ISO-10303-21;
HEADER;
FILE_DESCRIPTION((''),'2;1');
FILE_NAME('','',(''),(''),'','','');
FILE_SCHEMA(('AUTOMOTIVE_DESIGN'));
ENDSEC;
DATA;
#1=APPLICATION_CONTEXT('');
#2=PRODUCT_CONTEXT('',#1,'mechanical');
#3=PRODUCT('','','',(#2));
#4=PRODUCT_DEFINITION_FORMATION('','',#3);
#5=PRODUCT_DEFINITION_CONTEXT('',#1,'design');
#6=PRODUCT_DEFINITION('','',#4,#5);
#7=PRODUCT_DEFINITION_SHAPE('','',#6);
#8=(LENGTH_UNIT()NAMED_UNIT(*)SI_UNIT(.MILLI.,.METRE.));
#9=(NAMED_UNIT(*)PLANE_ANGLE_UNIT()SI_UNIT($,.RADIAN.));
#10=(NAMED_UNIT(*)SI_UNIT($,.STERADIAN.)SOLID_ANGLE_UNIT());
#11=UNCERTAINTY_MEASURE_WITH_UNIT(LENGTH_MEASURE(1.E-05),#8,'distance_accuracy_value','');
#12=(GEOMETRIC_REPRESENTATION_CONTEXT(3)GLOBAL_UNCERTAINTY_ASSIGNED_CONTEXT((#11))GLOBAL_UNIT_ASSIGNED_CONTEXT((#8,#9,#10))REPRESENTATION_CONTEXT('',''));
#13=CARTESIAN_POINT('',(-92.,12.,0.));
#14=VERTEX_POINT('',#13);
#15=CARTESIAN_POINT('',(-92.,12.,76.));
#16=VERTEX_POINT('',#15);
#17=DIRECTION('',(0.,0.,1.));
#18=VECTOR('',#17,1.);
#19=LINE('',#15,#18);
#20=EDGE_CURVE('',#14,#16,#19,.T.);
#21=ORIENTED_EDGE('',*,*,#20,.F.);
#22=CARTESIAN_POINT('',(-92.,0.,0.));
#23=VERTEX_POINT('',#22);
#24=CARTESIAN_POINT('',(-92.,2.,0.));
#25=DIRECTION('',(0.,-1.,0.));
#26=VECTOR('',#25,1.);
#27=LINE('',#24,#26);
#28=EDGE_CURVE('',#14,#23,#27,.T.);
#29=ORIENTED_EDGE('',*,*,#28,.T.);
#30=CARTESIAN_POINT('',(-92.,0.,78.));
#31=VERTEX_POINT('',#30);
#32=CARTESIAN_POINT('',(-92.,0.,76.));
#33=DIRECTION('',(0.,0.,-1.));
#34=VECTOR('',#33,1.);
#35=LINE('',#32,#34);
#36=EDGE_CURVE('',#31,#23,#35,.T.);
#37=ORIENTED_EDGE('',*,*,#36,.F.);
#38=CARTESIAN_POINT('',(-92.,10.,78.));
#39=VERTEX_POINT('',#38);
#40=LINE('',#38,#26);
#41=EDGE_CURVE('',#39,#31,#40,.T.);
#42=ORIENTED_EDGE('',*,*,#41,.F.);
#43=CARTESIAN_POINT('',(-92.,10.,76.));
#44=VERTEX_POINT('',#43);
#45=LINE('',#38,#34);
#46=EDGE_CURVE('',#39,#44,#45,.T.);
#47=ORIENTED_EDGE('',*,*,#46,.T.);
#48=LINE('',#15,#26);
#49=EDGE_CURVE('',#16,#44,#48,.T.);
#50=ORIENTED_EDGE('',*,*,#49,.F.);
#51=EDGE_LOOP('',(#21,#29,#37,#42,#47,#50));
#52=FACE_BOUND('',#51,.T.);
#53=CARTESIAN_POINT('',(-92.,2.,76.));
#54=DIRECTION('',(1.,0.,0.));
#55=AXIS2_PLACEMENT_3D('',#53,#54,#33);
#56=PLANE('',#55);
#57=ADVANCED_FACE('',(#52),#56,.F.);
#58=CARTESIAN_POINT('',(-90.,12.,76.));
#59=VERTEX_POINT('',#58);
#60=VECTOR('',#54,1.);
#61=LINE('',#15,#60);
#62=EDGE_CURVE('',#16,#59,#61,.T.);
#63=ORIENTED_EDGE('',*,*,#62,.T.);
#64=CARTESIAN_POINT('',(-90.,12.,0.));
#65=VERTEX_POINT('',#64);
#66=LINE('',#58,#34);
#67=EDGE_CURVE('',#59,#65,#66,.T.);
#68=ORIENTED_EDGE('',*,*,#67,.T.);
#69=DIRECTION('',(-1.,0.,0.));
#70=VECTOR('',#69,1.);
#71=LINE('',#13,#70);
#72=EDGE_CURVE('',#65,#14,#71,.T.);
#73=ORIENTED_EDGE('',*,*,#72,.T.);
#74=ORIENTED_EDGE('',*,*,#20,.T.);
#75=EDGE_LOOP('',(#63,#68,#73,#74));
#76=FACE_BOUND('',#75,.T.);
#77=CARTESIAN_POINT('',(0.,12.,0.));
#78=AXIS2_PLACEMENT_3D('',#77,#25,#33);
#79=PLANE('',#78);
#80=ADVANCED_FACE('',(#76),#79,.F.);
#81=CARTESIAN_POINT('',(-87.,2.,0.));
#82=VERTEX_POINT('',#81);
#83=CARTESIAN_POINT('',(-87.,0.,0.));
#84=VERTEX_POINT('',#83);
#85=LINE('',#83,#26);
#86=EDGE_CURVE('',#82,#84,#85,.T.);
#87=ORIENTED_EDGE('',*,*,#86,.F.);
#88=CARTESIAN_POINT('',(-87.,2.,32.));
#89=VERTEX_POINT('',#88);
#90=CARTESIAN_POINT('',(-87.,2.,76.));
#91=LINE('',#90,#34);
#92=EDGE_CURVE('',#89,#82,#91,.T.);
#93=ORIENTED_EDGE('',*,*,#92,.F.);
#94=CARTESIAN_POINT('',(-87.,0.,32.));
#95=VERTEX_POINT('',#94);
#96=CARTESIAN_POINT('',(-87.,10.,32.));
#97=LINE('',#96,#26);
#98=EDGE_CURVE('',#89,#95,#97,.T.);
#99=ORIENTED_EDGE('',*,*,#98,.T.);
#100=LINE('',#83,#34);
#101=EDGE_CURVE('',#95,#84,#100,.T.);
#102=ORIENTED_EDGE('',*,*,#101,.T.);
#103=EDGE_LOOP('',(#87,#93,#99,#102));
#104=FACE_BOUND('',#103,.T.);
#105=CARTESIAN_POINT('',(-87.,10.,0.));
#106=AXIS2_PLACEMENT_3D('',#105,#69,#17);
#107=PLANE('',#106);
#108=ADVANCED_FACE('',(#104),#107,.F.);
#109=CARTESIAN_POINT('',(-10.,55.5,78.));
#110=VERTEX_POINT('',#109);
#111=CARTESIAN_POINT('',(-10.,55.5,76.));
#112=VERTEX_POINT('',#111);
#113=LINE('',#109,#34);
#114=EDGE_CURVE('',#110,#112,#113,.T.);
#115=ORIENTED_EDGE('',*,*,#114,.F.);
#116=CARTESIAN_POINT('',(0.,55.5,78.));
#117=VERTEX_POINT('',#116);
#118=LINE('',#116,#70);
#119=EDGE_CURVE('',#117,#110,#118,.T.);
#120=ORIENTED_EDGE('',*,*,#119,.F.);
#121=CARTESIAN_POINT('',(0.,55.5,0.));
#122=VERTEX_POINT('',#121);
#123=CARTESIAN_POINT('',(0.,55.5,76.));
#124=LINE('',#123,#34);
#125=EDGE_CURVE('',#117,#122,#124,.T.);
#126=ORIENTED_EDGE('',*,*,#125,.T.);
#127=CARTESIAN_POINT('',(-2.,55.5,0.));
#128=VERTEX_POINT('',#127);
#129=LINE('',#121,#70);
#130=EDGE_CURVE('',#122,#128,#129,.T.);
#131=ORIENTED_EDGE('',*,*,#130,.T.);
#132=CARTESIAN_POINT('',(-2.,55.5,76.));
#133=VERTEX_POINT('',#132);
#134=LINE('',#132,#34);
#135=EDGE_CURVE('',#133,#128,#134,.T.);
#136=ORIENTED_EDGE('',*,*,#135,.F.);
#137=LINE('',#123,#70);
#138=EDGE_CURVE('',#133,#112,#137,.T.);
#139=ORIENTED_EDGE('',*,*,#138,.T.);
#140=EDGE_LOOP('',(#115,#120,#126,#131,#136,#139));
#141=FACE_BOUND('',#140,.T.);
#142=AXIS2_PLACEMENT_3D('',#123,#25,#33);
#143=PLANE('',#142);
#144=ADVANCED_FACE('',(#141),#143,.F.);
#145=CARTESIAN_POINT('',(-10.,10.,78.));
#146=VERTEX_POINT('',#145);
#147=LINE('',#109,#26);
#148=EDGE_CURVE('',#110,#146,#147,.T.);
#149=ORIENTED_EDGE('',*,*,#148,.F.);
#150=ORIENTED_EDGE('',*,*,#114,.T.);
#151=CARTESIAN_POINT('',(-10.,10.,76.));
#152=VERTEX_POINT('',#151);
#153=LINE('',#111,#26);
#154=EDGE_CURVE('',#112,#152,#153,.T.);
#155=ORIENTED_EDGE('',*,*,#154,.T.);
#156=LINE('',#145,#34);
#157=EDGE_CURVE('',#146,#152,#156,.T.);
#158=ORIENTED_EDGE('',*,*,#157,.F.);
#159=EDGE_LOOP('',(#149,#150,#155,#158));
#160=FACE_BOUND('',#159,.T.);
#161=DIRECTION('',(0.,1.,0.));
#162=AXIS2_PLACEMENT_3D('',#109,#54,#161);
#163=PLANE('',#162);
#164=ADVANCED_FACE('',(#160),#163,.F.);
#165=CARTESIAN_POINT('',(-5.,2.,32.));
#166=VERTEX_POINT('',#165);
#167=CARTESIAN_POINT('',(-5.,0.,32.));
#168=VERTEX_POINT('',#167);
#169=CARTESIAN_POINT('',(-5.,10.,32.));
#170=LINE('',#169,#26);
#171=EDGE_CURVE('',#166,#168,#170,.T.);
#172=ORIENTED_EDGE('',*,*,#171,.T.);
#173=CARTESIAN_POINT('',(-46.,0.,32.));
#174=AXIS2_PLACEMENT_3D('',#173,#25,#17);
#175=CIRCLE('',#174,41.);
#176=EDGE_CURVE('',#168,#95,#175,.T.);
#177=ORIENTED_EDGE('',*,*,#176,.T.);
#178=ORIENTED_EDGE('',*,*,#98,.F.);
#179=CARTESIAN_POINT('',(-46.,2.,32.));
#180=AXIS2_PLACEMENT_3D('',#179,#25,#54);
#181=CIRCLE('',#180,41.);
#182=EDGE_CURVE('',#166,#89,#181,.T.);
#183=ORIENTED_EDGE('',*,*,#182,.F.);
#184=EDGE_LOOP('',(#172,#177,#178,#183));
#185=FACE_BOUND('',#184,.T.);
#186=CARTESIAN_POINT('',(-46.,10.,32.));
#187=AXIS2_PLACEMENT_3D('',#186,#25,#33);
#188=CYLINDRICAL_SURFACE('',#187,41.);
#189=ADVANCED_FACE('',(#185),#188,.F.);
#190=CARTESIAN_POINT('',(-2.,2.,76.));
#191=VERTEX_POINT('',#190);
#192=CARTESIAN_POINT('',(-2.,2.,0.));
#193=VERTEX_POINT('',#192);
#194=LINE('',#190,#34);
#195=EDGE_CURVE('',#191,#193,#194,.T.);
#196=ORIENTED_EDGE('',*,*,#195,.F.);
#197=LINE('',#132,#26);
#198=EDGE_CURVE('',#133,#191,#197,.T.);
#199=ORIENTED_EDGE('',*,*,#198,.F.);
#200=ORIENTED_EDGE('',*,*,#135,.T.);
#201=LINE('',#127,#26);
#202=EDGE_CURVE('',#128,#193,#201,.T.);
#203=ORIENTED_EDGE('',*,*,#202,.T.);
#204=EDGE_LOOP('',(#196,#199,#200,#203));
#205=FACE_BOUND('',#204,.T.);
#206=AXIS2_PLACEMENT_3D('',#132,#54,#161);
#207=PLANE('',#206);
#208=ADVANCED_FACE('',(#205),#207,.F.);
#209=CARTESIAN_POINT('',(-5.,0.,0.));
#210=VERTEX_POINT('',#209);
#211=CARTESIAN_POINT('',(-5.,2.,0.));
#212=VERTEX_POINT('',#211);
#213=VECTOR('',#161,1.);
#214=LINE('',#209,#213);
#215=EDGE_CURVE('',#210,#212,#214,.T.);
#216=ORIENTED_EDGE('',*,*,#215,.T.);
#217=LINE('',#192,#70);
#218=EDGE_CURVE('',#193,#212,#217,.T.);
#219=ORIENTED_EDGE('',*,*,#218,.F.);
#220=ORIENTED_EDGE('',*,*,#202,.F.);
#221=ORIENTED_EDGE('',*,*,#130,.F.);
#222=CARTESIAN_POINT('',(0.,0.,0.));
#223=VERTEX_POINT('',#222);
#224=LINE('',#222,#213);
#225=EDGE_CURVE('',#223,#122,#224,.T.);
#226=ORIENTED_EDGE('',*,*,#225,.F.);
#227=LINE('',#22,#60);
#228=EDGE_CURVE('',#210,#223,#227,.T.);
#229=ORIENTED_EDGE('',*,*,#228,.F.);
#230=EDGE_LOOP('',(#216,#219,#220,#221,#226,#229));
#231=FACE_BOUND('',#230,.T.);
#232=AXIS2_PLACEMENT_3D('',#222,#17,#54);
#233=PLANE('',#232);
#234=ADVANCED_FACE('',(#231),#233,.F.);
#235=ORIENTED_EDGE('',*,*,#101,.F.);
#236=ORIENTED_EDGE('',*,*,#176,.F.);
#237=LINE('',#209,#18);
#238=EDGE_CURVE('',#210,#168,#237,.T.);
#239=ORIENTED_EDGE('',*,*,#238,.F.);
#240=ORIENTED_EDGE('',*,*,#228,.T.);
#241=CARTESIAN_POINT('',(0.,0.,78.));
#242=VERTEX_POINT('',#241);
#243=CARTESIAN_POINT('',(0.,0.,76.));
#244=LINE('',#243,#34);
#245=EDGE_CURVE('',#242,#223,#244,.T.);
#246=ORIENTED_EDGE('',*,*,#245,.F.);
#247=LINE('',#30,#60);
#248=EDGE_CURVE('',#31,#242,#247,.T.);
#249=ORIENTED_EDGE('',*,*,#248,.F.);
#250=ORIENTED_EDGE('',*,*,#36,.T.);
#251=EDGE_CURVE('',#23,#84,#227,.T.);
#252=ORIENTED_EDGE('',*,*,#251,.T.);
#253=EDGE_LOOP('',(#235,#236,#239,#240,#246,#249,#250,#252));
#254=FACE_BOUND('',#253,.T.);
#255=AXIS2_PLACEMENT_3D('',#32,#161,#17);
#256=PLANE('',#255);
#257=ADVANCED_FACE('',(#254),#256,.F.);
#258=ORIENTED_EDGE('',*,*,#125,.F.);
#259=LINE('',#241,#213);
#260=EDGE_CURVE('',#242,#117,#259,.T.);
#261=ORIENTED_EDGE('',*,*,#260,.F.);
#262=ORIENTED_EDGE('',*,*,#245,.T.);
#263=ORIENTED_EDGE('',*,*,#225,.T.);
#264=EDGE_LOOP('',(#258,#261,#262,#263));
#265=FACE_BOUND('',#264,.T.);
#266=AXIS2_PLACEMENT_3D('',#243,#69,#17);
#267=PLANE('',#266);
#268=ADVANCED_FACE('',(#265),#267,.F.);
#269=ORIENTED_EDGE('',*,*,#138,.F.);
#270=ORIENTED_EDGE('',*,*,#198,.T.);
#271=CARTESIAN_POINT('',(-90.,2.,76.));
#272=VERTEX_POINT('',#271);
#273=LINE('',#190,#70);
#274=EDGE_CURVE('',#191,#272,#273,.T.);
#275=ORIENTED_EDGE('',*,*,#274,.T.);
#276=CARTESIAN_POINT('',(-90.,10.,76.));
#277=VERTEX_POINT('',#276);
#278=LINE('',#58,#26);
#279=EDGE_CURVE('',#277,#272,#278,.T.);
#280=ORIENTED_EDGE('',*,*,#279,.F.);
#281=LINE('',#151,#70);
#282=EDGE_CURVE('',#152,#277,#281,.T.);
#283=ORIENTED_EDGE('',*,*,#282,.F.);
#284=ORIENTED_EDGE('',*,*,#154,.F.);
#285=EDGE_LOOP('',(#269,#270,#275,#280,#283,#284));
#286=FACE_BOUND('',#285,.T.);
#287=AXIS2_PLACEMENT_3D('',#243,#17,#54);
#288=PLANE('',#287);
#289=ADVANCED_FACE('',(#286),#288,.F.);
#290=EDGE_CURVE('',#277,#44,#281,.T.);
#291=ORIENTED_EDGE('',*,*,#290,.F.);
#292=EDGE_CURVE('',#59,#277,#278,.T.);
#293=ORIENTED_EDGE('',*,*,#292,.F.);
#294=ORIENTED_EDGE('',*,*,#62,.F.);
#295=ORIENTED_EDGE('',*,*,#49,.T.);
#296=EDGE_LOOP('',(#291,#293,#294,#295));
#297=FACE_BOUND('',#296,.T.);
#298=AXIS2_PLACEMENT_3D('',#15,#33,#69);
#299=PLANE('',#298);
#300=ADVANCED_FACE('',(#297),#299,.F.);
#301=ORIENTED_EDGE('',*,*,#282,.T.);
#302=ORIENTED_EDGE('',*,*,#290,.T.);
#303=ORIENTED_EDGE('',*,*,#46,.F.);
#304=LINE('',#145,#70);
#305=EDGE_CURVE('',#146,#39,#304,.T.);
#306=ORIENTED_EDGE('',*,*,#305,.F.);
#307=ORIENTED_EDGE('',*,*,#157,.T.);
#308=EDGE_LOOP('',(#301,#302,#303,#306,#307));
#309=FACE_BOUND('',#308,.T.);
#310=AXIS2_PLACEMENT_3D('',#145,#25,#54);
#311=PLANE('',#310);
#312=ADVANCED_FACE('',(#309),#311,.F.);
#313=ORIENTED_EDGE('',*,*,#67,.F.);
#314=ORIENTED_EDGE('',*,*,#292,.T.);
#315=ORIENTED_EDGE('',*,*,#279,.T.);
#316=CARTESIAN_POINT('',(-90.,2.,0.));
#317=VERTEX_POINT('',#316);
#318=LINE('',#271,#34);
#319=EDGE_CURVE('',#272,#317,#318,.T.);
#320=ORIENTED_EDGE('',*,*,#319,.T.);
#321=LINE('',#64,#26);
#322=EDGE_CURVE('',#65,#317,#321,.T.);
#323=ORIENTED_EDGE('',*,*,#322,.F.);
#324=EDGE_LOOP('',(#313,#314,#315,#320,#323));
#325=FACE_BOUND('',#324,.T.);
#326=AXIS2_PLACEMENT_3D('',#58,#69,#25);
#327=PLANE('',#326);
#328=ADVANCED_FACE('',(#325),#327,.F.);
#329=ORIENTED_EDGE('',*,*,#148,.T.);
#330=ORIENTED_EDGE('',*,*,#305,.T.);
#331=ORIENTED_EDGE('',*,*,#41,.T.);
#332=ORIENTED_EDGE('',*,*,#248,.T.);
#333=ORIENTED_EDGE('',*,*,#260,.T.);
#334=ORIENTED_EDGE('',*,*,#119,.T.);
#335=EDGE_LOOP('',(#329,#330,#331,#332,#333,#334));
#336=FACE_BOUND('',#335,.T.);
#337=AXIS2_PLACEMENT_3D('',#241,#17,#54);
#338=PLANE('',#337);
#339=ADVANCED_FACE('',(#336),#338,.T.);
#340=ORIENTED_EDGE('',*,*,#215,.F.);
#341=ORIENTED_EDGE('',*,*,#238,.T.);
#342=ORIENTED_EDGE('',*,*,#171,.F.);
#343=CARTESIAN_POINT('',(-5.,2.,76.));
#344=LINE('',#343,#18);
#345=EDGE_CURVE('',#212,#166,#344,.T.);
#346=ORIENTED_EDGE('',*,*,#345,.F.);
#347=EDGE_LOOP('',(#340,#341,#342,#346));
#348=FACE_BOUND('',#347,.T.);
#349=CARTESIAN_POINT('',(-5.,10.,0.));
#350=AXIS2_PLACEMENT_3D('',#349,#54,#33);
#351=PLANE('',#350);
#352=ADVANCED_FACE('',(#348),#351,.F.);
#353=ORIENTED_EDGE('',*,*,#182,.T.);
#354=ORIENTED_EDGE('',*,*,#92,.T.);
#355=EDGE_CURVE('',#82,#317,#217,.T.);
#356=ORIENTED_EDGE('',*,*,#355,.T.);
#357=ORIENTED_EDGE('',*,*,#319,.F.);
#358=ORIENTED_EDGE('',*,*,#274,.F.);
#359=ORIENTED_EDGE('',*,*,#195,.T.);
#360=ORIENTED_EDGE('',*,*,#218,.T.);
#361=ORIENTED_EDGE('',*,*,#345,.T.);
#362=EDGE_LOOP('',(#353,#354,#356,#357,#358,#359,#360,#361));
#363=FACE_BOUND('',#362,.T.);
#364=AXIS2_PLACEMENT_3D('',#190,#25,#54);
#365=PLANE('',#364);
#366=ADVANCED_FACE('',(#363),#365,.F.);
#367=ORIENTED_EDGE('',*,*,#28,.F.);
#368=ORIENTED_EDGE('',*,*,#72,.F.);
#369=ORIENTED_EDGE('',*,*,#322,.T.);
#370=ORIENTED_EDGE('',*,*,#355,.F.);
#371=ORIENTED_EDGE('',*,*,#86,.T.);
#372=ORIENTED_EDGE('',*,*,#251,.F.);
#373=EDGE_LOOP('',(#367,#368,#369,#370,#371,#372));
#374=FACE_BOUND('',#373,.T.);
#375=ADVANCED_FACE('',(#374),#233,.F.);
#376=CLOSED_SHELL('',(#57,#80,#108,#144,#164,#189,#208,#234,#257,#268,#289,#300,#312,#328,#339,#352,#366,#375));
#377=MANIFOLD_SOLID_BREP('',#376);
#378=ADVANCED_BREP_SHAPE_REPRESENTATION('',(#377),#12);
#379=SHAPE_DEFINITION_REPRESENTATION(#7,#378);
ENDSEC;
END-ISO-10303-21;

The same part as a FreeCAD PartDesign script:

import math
import FreeCAD as App
import Part
import Sketcher
Q = App.Units.Quantity

doc = App.newDocument("Part")
body = doc.addObject("PartDesign::Body", "Body")

# Sketch on XY plane
sketch1 = doc.addObject("Sketcher::SketchObject", "Sketch")
body.addObject(sketch1)
sketch1.AttachmentSupport = (doc.XY_Plane, [""])
sketch1.MapMode = "FlatFace"
sketch1.addGeometry(Part.LineSegment(App.Vector(-92, 0, 0), App.Vector(0, 0, 0)), False)
sketch1.addGeometry(Part.LineSegment(App.Vector(0, 0, 0), App.Vector(0, 55.5, 0)), False)
sketch1.addGeometry(Part.LineSegment(App.Vector(0, 55.5, 0), App.Vector(-2, 55.5, 0)), False)
sketch1.addGeometry(Part.LineSegment(App.Vector(-2, 55.5, 0), App.Vector(-2, 2, 0)), False)
sketch1.addGeometry(Part.LineSegment(App.Vector(-2, 2, 0), App.Vector(-92, 2, 0)), False)
sketch1.addGeometry(Part.LineSegment(App.Vector(-92, 2, 0), App.Vector(-92, 0, 0)), False)
sketch1.addConstraint(Sketcher.Constraint("Coincident", 0, 2, 1, 1))
sketch1.addConstraint(Sketcher.Constraint("Coincident", 1, 2, 2, 1))
sketch1.addConstraint(Sketcher.Constraint("Coincident", 2, 2, 3, 1))
sketch1.addConstraint(Sketcher.Constraint("Coincident", 3, 2, 4, 1))
sketch1.addConstraint(Sketcher.Constraint("Coincident", 4, 2, 5, 1))
sketch1.addConstraint(Sketcher.Constraint("Coincident", 5, 2, 0, 1))
sketch1.addConstraint(Sketcher.Constraint("Horizontal", 0))
sketch1.addConstraint(Sketcher.Constraint("Vertical", 1))
sketch1.addConstraint(Sketcher.Constraint("Horizontal", 2))
sketch1.addConstraint(Sketcher.Constraint("Vertical", 3))
sketch1.addConstraint(Sketcher.Constraint("Horizontal", 4))
sketch1.addConstraint(Sketcher.Constraint("Vertical", 5))
sketch1.addConstraint(Sketcher.Constraint("Coincident", 0, 2, -1, 1))
sketch1.addConstraint(Sketcher.Constraint("Equal", 2, 5))
sketch1.addConstraint(Sketcher.Constraint("DistanceX", 0, 1, 0, 2, Q("92 mm")))
sketch1.addConstraint(Sketcher.Constraint("DistanceX", 2, 2, 2, 1, Q("2 mm")))
sketch1.addConstraint(Sketcher.Constraint("DistanceY", 1, 1, 1, 2, Q("55.5 mm")))
pad1 = doc.addObject("PartDesign::Pad", "Pad")
body.addObject(pad1)
pad1.Profile = sketch1
pad1.Length = 76

# Sketch on XY plane
sketch2 = doc.addObject("Sketcher::SketchObject", "Sketch001")
body.addObject(sketch2)
sketch2.AttachmentSupport = (doc.XY_Plane, [""])
sketch2.MapMode = "FlatFace"
sketch2.AttachmentOffset = App.Placement(App.Vector(0, 0, 76), App.Rotation())
sketch2.addGeometry(Part.LineSegment(App.Vector(0, 56, 0), App.Vector(-10, 56, 0)), False)
sketch2.addGeometry(Part.LineSegment(App.Vector(-10, 56, 0), App.Vector(-10, 10, 0)), False)
sketch2.addGeometry(Part.LineSegment(App.Vector(-10, 10, 0), App.Vector(-92, 10, 0)), False)
sketch2.addGeometry(Part.LineSegment(App.Vector(-92, 10, 0), App.Vector(-92, 0, 0)), False)
sketch2.addGeometry(Part.LineSegment(App.Vector(-92, 0, 0), App.Vector(0, 0, 0)), False)
sketch2.addGeometry(Part.LineSegment(App.Vector(0, 0, 0), App.Vector(0, 56, 0)), False)
sketch2.addConstraint(Sketcher.Constraint("Coincident", 0, 2, 1, 1))
sketch2.addConstraint(Sketcher.Constraint("Coincident", 1, 2, 2, 1))
sketch2.addConstraint(Sketcher.Constraint("Coincident", 2, 2, 3, 1))
sketch2.addConstraint(Sketcher.Constraint("Coincident", 3, 2, 4, 1))
sketch2.addConstraint(Sketcher.Constraint("Coincident", 4, 2, 5, 1))
sketch2.addConstraint(Sketcher.Constraint("Coincident", 5, 2, 0, 1))
sketch2.addConstraint(Sketcher.Constraint("Horizontal", 0))
sketch2.addConstraint(Sketcher.Constraint("Vertical", 1))
sketch2.addConstraint(Sketcher.Constraint("Horizontal", 2))
sketch2.addConstraint(Sketcher.Constraint("Vertical", 3))
sketch2.addConstraint(Sketcher.Constraint("Horizontal", 4))
sketch2.addConstraint(Sketcher.Constraint("Vertical", 5))
sketch2.addConstraint(Sketcher.Constraint("Coincident", 4, 2, -1, 1))
sketch2.addConstraint(Sketcher.Constraint("Equal", 0, 3))
sketch2.addConstraint(Sketcher.Constraint("DistanceX", 0, 2, 0, 1, Q("10 mm")))
sketch2.addConstraint(Sketcher.Constraint("DistanceX", 2, 2, 2, 1, Q("82 mm")))
sketch2.addConstraint(Sketcher.Constraint("DistanceY", 1, 2, 1, 1, Q("45.5 mm")))
pad2 = doc.addObject("PartDesign::Pad", "Pad001")
body.addObject(pad2)
pad2.Profile = sketch2
pad2.Length = 2

# Sketch on XZ plane
sketch3 = doc.addObject("Sketcher::SketchObject", "Sketch002")
body.addObject(sketch3)
sketch3.AttachmentSupport = (doc.XZ_Plane, [""])
sketch3.MapMode = "FlatFace"
sketch3.addGeometry(Part.LineSegment(App.Vector(-87, 32, 0), App.Vector(-87, 0, 0)), False)
sketch3.addGeometry(Part.LineSegment(App.Vector(-87, 0, 0), App.Vector(-5, 0, 0)), False)
sketch3.addGeometry(Part.LineSegment(App.Vector(-5, 0, 0), App.Vector(-5, 32, 0)), False)
sketch3.addGeometry(Part.ArcOfCircle(Part.Circle(App.Vector(-46, 32, 0), App.Vector(0, 0, 1), 41), math.radians(0), math.radians(180)), False)
sketch3.addConstraint(Sketcher.Constraint("Coincident", 0, 2, 1, 1))
sketch3.addConstraint(Sketcher.Constraint("Coincident", 1, 2, 2, 1))
sketch3.addConstraint(Sketcher.Constraint("Tangent", 2, 2, 3, 1))
sketch3.addConstraint(Sketcher.Constraint("Tangent", 3, 2, 0, 1))
sketch3.addConstraint(Sketcher.Constraint("Vertical", 0))
sketch3.addConstraint(Sketcher.Constraint("Horizontal", 1))
sketch3.addConstraint(Sketcher.Constraint("Vertical", 2))
sketch3.addConstraint(Sketcher.Constraint("PointOnObject", 0, 2, -1))
sketch3.addConstraint(Sketcher.Constraint("Radius", 3, Q("41 mm")))
sketch3.addConstraint(Sketcher.Constraint("DistanceY", 0, 2, 0, 1, Q("32 mm")))
sketch3.addConstraint(Sketcher.Constraint("DistanceX", 3, 3, -1, 1, Q("46 mm")))
pocket1 = doc.addObject("PartDesign::Pocket", "Pocket")
body.addObject(pocket1)
pocket1.Profile = sketch3
pocket1.Length = 10

# Sketch on XZ plane
sketch4 = doc.addObject("Sketcher::SketchObject", "Sketch003")
body.addObject(sketch4)
sketch4.AttachmentSupport = (doc.XZ_Plane, [""])
sketch4.MapMode = "FlatFace"
sketch4.AttachmentOffset = App.Placement(App.Vector(0, 0, -2), App.Rotation())
sketch4.addGeometry(Part.LineSegment(App.Vector(-92, 0, 0), App.Vector(-92, 76, 0)), False)
sketch4.addGeometry(Part.LineSegment(App.Vector(-92, 76, 0), App.Vector(-90, 76, 0)), False)
sketch4.addGeometry(Part.LineSegment(App.Vector(-90, 76, 0), App.Vector(-90, 0, 0)), False)
sketch4.addGeometry(Part.LineSegment(App.Vector(-90, 0, 0), App.Vector(-92, 0, 0)), False)
sketch4.addConstraint(Sketcher.Constraint("Coincident", 0, 2, 1, 1))
sketch4.addConstraint(Sketcher.Constraint("Coincident", 1, 2, 2, 1))
sketch4.addConstraint(Sketcher.Constraint("Coincident", 2, 2, 3, 1))
sketch4.addConstraint(Sketcher.Constraint("Coincident", 3, 2, 0, 1))
sketch4.addConstraint(Sketcher.Constraint("Vertical", 0))
sketch4.addConstraint(Sketcher.Constraint("Horizontal", 1))
sketch4.addConstraint(Sketcher.Constraint("Vertical", 2))
sketch4.addConstraint(Sketcher.Constraint("Horizontal", 3))
sketch4.addConstraint(Sketcher.Constraint("PointOnObject", 2, 2, -1))
sketch4.addConstraint(Sketcher.Constraint("DistanceX", 1, 1, 1, 2, Q("2 mm")))
sketch4.addConstraint(Sketcher.Constraint("DistanceY", 0, 1, 0, 2, Q("76 mm")))
sketch4.addConstraint(Sketcher.Constraint("DistanceX", 0, 2, -1, 1, Q("92 mm")))
pad3 = doc.addObject("PartDesign::Pad", "Pad002")
body.addObject(pad3)
pad3.Profile = sketch4
pad3.Length = 10
pad3.Reversed = True

doc.recompute()
